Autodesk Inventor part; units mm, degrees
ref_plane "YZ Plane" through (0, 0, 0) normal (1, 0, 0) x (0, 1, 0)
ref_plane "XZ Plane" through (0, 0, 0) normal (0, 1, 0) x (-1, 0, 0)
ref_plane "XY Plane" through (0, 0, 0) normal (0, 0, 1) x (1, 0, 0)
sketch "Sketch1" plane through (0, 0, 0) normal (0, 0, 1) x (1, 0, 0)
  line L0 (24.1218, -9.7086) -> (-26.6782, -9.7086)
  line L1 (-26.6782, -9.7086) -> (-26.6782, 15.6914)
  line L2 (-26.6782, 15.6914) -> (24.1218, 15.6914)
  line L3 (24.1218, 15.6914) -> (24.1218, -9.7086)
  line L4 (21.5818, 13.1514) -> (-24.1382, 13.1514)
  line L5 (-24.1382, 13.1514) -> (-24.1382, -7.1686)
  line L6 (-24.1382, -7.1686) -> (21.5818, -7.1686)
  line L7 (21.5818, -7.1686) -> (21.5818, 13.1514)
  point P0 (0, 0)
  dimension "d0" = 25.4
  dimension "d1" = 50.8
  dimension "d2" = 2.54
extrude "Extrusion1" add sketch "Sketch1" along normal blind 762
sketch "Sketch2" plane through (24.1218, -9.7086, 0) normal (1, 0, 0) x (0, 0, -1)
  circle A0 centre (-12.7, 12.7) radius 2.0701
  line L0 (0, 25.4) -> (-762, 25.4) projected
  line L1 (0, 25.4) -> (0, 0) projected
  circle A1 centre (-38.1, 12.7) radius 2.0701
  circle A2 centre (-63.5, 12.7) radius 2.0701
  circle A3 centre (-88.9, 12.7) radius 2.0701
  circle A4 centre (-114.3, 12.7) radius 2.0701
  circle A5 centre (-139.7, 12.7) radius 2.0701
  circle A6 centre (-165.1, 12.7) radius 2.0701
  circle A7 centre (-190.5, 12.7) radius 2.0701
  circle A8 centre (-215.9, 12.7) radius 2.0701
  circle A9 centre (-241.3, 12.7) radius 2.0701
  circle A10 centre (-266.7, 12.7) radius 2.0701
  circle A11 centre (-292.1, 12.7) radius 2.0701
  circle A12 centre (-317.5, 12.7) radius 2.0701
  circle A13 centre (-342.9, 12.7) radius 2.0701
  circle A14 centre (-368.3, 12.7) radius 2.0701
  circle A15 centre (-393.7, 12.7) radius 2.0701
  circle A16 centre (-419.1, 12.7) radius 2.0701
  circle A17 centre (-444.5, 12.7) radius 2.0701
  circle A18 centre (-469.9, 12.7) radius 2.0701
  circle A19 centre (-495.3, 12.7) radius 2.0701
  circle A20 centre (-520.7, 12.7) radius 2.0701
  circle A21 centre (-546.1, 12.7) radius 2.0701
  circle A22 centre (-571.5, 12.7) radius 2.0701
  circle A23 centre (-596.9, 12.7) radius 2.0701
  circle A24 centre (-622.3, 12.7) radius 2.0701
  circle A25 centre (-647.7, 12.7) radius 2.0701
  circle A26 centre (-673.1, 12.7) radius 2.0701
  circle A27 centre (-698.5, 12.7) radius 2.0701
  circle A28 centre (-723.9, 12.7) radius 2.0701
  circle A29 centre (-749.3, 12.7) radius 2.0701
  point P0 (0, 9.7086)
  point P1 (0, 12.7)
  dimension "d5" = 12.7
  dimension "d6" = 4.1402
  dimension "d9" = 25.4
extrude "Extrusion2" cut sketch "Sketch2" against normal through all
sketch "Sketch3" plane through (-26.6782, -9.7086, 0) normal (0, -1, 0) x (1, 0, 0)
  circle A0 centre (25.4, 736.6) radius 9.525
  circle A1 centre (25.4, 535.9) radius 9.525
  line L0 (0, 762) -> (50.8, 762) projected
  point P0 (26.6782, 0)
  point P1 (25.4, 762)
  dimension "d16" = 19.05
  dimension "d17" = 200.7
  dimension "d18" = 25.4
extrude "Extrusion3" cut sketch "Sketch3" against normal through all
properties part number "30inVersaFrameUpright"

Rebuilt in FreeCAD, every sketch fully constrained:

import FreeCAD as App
import Part
import Sketcher
from FreeCAD import Vector
Q = App.Units.Quantity

doc = App.newDocument("Part")
body = doc.addObject("PartDesign::Body", "Body")

sketch1 = doc.addObject("Sketcher::SketchObject", "Sketch")
body.addObject(sketch1)
sketch1.AttachmentSupport = (doc.XY_Plane, [""])
sketch1.MapMode = "FlatFace"
sketch1.addGeometry(Part.LineSegment(Vector(-26.6782, -9.7086, 0), Vector(24.1218, -9.7086, 0)), False)
sketch1.addGeometry(Part.LineSegment(Vector(24.1218, -9.7086, 0), Vector(24.1218, 15.6914, 0)), False)
sketch1.addGeometry(Part.LineSegment(Vector(24.1218, 15.6914, 0), Vector(-26.6782, 15.6914, 0)), False)
sketch1.addGeometry(Part.LineSegment(Vector(-26.6782, 15.6914, 0), Vector(-26.6782, -9.7086, 0)), False)
sketch1.addGeometry(Part.LineSegment(Vector(-24.1382, 13.1514, 0), Vector(21.5818, 13.1514, 0)), False)
sketch1.addGeometry(Part.LineSegment(Vector(21.5818, 13.1514, 0), Vector(21.5818, -7.1686, 0)), False)
sketch1.addGeometry(Part.LineSegment(Vector(21.5818, -7.1686, 0), Vector(-24.1382, -7.1686, 0)), False)
sketch1.addGeometry(Part.LineSegment(Vector(-24.1382, -7.1686, 0), Vector(-24.1382, 13.1514, 0)), False)
sketch1.addConstraint(Sketcher.Constraint("Coincident", 0, 2, 1, 1))
sketch1.addConstraint(Sketcher.Constraint("Coincident", 1, 2, 2, 1))
sketch1.addConstraint(Sketcher.Constraint("Coincident", 2, 2, 3, 1))
sketch1.addConstraint(Sketcher.Constraint("Coincident", 3, 2, 0, 1))
sketch1.addConstraint(Sketcher.Constraint("Coincident", 4, 2, 5, 1))
sketch1.addConstraint(Sketcher.Constraint("Coincident", 5, 2, 6, 1))
sketch1.addConstraint(Sketcher.Constraint("Coincident", 6, 2, 7, 1))
sketch1.addConstraint(Sketcher.Constraint("Coincident", 7, 2, 4, 1))
sketch1.addConstraint(Sketcher.Constraint("Horizontal", 0))
sketch1.addConstraint(Sketcher.Constraint("Vertical", 1))
sketch1.addConstraint(Sketcher.Constraint("Horizontal", 2))
sketch1.addConstraint(Sketcher.Constraint("Vertical", 3))
sketch1.addConstraint(Sketcher.Constraint("Horizontal", 4))
sketch1.addConstraint(Sketcher.Constraint("Vertical", 5))
sketch1.addConstraint(Sketcher.Constraint("Horizontal", 6))
sketch1.addConstraint(Sketcher.Constraint("Vertical", 7))
sketch1.addConstraint(Sketcher.Constraint("DistanceX", 0, 1, 0, 2, Q("2 in")))
sketch1.addConstraint(Sketcher.Constraint("DistanceY", 1, 1, 1, 2, Q("1 in")))
sketch1.addConstraint(Sketcher.Constraint("DistanceX", 4, 2, 1, 2, Q("0.1 in")))
sketch1.addConstraint(Sketcher.Constraint("DistanceY", 4, 2, 1, 2, Q("0.1 in")))
sketch1.addConstraint(Sketcher.Constraint("DistanceY", 0, 2, 5, 2, Q("0.1 in")))
sketch1.addConstraint(Sketcher.Constraint("DistanceX", 3, 2, 6, 2, Q("0.1 in")))
sketch1.addConstraint(Sketcher.Constraint("DistanceX", -1, 1, 0, 2, Q("24.1218 mm")))
sketch1.addConstraint(Sketcher.Constraint("DistanceY", 0, 2, -1, 1, Q("9.7086 mm")))
pad1 = doc.addObject("PartDesign::Pad", "Pad")
body.addObject(pad1)
pad1.Profile = sketch1
pad1.Length = Q("30 in")

sketch2 = doc.addObject("Sketcher::SketchObject", "Sketch001")
body.addObject(sketch2)
sketch2.AttachmentSupport = (doc.YZ_Plane, [""])
sketch2.MapMode = "FlatFace"
sketch2.AttachmentOffset = App.Placement(Vector(0, 0, 24.1218), App.Rotation())
sketch2.addGeometry(Part.Circle(Vector(2.9914, 12.7, 0), Vector(0, 0, 1), 2.0701), False)
sketch2.addGeometry(Part.Circle(Vector(2.9914, 38.1, 0), Vector(0, 0, 1), 2.0701), False)
sketch2.addGeometry(Part.Circle(Vector(2.9914, 63.5, 0), Vector(0, 0, 1), 2.0701), False)
sketch2.addGeometry(Part.Circle(Vector(2.9914, 88.9, 0), Vector(0, 0, 1), 2.0701), False)
sketch2.addGeometry(Part.Circle(Vector(2.9914, 114.3, 0), Vector(0, 0, 1), 2.0701), False)
sketch2.addGeometry(Part.Circle(Vector(2.9914, 139.7, 0), Vector(0, 0, 1), 2.0701), False)
sketch2.addGeometry(Part.Circle(Vector(2.9914, 165.1, 0), Vector(0, 0, 1), 2.0701), False)
sketch2.addGeometry(Part.Circle(Vector(2.9914, 190.5, 0), Vector(0, 0, 1), 2.0701), False)
sketch2.addGeometry(Part.Circle(Vector(2.9914, 215.9, 0), Vector(0, 0, 1), 2.0701), False)
sketch2.addGeometry(Part.Circle(Vector(2.9914, 241.3, 0), Vector(0, 0, 1), 2.0701), False)
sketch2.addGeometry(Part.Circle(Vector(2.9914, 266.7, 0), Vector(0, 0, 1), 2.0701), False)
sketch2.addGeometry(Part.Circle(Vector(2.9914, 292.1, 0), Vector(0, 0, 1), 2.0701), False)
sketch2.addGeometry(Part.Circle(Vector(2.9914, 317.5, 0), Vector(0, 0, 1), 2.0701), False)
sketch2.addGeometry(Part.Circle(Vector(2.9914, 342.9, 0), Vector(0, 0, 1), 2.0701), False)
sketch2.addGeometry(Part.Circle(Vector(2.9914, 368.3, 0), Vector(0, 0, 1), 2.0701), False)
sketch2.addGeometry(Part.Circle(Vector(2.9914, 393.7, 0), Vector(0, 0, 1), 2.0701), False)
sketch2.addGeometry(Part.Circle(Vector(2.9914, 419.1, 0), Vector(0, 0, 1), 2.0701), False)
sketch2.addGeometry(Part.Circle(Vector(2.9914, 444.5, 0), Vector(0, 0, 1), 2.0701), False)
sketch2.addGeometry(Part.Circle(Vector(2.9914, 469.9, 0), Vector(0, 0, 1), 2.0701), False)
sketch2.addGeometry(Part.Circle(Vector(2.9914, 495.3, 0), Vector(0, 0, 1), 2.0701), False)
sketch2.addGeometry(Part.Circle(Vector(2.9914, 520.7, 0), Vector(0, 0, 1), 2.0701), False)
sketch2.addGeometry(Part.Circle(Vector(2.9914, 546.1, 0), Vector(0, 0, 1), 2.0701), False)
sketch2.addGeometry(Part.Circle(Vector(2.9914, 571.5, 0), Vector(0, 0, 1), 2.0701), False)
sketch2.addGeometry(Part.Circle(Vector(2.9914, 596.9, 0), Vector(0, 0, 1), 2.0701), False)
sketch2.addGeometry(Part.Circle(Vector(2.9914, 622.3, 0), Vector(0, 0, 1), 2.0701), False)
sketch2.addGeometry(Part.Circle(Vector(2.9914, 647.7, 0), Vector(0, 0, 1), 2.0701), False)
sketch2.addGeometry(Part.Circle(Vector(2.9914, 673.1, 0), Vector(0, 0, 1), 2.0701), False)
sketch2.addGeometry(Part.Circle(Vector(2.9914, 698.5, 0), Vector(0, 0, 1), 2.0701), False)
sketch2.addGeometry(Part.Circle(Vector(2.9914, 723.9, 0), Vector(0, 0, 1), 2.0701), False)
sketch2.addGeometry(Part.Circle(Vector(2.9914, 749.3, 0), Vector(0, 0, 1), 2.0701), False)
sketch2.addConstraint(Sketcher.Constraint("Equal", 0, 1))
sketch2.addConstraint(Sketcher.Constraint("Equal", 1, 2))
sketch2.addConstraint(Sketcher.Constraint("Equal", 2, 3))
sketch2.addConstraint(Sketcher.Constraint("Equal", 3, 4))
sketch2.addConstraint(Sketcher.Constraint("Equal", 4, 5))
sketch2.addConstraint(Sketcher.Constraint("Equal", 5, 6))
sketch2.addConstraint(Sketcher.Constraint("Equal", 6, 7))
sketch2.addConstraint(Sketcher.Constraint("Equal", 7, 8))
sketch2.addConstraint(Sketcher.Constraint("Equal", 8, 9))
sketch2.addConstraint(Sketcher.Constraint("Equal", 9, 10))
sketch2.addConstraint(Sketcher.Constraint("Equal", 10, 11))
sketch2.addConstraint(Sketcher.Constraint("Equal", 11, 12))
sketch2.addConstraint(Sketcher.Constraint("Equal", 12, 13))
sketch2.addConstraint(Sketcher.Constraint("Equal", 13, 14))
sketch2.addConstraint(Sketcher.Constraint("Equal", 14, 15))
sketch2.addConstraint(Sketcher.Constraint("Equal", 15, 16))
sketch2.addConstraint(Sketcher.Constraint("Equal", 16, 17))
sketch2.addConstraint(Sketcher.Constraint("Equal", 17, 18))
sketch2.addConstraint(Sketcher.Constraint("Equal", 18, 19))
sketch2.addConstraint(Sketcher.Constraint("Equal", 19, 20))
sketch2.addConstraint(Sketcher.Constraint("Equal", 20, 21))
sketch2.addConstraint(Sketcher.Constraint("Equal", 21, 22))
sketch2.addConstraint(Sketcher.Constraint("Equal", 22, 23))
sketch2.addConstraint(Sketcher.Constraint("Equal", 23, 24))
sketch2.addConstraint(Sketcher.Constraint("Equal", 24, 25))
sketch2.addConstraint(Sketcher.Constraint("Equal", 25, 26))
sketch2.addConstraint(Sketcher.Constraint("Equal", 26, 27))
sketch2.addConstraint(Sketcher.Constraint("Equal", 27, 28))
sketch2.addConstraint(Sketcher.Constraint("Equal", 28, 29))
sketch2.addConstraint(Sketcher.Constraint("Vertical", 0, 3, 1, 3))
sketch2.addConstraint(Sketcher.Constraint("Vertical", 1, 3, 2, 3))
sketch2.addConstraint(Sketcher.Constraint("Vertical", 2, 3, 3, 3))
sketch2.addConstraint(Sketcher.Constraint("Vertical", 3, 3, 4, 3))
sketch2.addConstraint(Sketcher.Constraint("Vertical", 4, 3, 5, 3))
sketch2.addConstraint(Sketcher.Constraint("Vertical", 5, 3, 6, 3))
sketch2.addConstraint(Sketcher.Constraint("Vertical", 6, 3, 7, 3))
sketch2.addConstraint(Sketcher.Constraint("Vertical", 7, 3, 8, 3))
sketch2.addConstraint(Sketcher.Constraint("Vertical", 8, 3, 9, 3))
sketch2.addConstraint(Sketcher.Constraint("Vertical", 9, 3, 10, 3))
sketch2.addConstraint(Sketcher.Constraint("Vertical", 10, 3, 11, 3))
sketch2.addConstraint(Sketcher.Constraint("Vertical", 11, 3, 12, 3))
sketch2.addConstraint(Sketcher.Constraint("Vertical", 12, 3, 13, 3))
sketch2.addConstraint(Sketcher.Constraint("Vertical", 13, 3, 14, 3))
sketch2.addConstraint(Sketcher.Constraint("Vertical", 14, 3, 15, 3))
sketch2.addConstraint(Sketcher.Constraint("Vertical", 15, 3, 16, 3))
sketch2.addConstraint(Sketcher.Constraint("Vertical", 16, 3, 17, 3))
sketch2.addConstraint(Sketcher.Constraint("Vertical", 17, 3, 18, 3))
sketch2.addConstraint(Sketcher.Constraint("Vertical", 18, 3, 19, 3))
sketch2.addConstraint(Sketcher.Constraint("Vertical", 19, 3, 20, 3))
sketch2.addConstraint(Sketcher.Constraint("Vertical", 20, 3, 21, 3))
sketch2.addConstraint(Sketcher.Constraint("Vertical", 21, 3, 22, 3))
sketch2.addConstraint(Sketcher.Constraint("Vertical", 22, 3, 23, 3))
sketch2.addConstraint(Sketcher.Constraint("Vertical", 23, 3, 24, 3))
sketch2.addConstraint(Sketcher.Constraint("Vertical", 24, 3, 25, 3))
sketch2.addConstraint(Sketcher.Constraint("Vertical", 25, 3, 26, 3))
sketch2.addConstraint(Sketcher.Constraint("Vertical", 26, 3, 27, 3))
sketch2.addConstraint(Sketcher.Constraint("Vertical", 27, 3, 28, 3))
sketch2.addConstraint(Sketcher.Constraint("Vertical", 28, 3, 29, 3))
sketch2.addConstraint(Sketcher.Constraint("Diameter", 0, Q("0.163 in")))
sketch2.addConstraint(Sketcher.Constraint("DistanceY", 0, 3, 1, 3, Q("1 in")))
sketch2.addConstraint(Sketcher.Constraint("DistanceY", 1, 3, 2, 3, Q("1 in")))
sketch2.addConstraint(Sketcher.Constraint("DistanceY", 2, 3, 3, 3, Q("1 in")))
sketch2.addConstraint(Sketcher.Constraint("DistanceY", 3, 3, 4, 3, Q("1 in")))
sketch2.addConstraint(Sketcher.Constraint("DistanceY", 4, 3, 5, 3, Q("1 in")))
sketch2.addConstraint(Sketcher.Constraint("DistanceY", 5, 3, 6, 3, Q("1 in")))
sketch2.addConstraint(Sketcher.Constraint("DistanceY", 6, 3, 7, 3, Q("1 in")))
sketch2.addConstraint(Sketcher.Constraint("DistanceY", 7, 3, 8, 3, Q("1 in")))
sketch2.addConstraint(Sketcher.Constraint("DistanceY", 8, 3, 9, 3, Q("1 in")))
sketch2.addConstraint(Sketcher.Constraint("DistanceY", 9, 3, 10, 3, Q("1 in")))
sketch2.addConstraint(Sketcher.Constraint("DistanceY", 10, 3, 11, 3, Q("1 in")))
sketch2.addConstraint(Sketcher.Constraint("DistanceY", 11, 3, 12, 3, Q("1 in")))
sketch2.addConstraint(Sketcher.Constraint("DistanceY", 12, 3, 13, 3, Q("1 in")))
sketch2.addConstraint(Sketcher.Constraint("DistanceY", 13, 3, 14, 3, Q("1 in")))
sketch2.addConstraint(Sketcher.Constraint("DistanceY", 14, 3, 15, 3, Q("1 in")))
sketch2.addConstraint(Sketcher.Constraint("DistanceY", 15, 3, 16, 3, Q("1 in")))
sketch2.addConstraint(Sketcher.Constraint("DistanceY", 16, 3, 17, 3, Q("1 in")))
sketch2.addConstraint(Sketcher.Constraint("DistanceY", 17, 3, 18, 3, Q("1 in")))
sketch2.addConstraint(Sketcher.Constraint("DistanceY", 18, 3, 19, 3, Q("1 in")))
sketch2.addConstraint(Sketcher.Constraint("DistanceY", 19, 3, 20, 3, Q("1 in")))
sketch2.addConstraint(Sketcher.Constraint("DistanceY", 20, 3, 21, 3, Q("1 in")))
sketch2.addConstraint(Sketcher.Constraint("DistanceY", 21, 3, 22, 3, Q("1 in")))
sketch2.addConstraint(Sketcher.Constraint("DistanceY", 22, 3, 23, 3, Q("1 in")))
sketch2.addConstraint(Sketcher.Constraint("DistanceY", 23, 3, 24, 3, Q("1 in")))
sketch2.addConstraint(Sketcher.Constraint("DistanceY", 24, 3, 25, 3, Q("1 in")))
sketch2.addConstraint(Sketcher.Constraint("DistanceY", 25, 3, 26, 3, Q("1 in")))
sketch2.addConstraint(Sketcher.Constraint("DistanceY", 26, 3, 27, 3, Q("1 in")))
sketch2.addConstraint(Sketcher.Constraint("DistanceY", 27, 3, 28, 3, Q("1 in")))
sketch2.addConstraint(Sketcher.Constraint("DistanceY", 28, 3, 29, 3, Q("1 in")))
sketch2.addConstraint(Sketcher.Constraint("DistanceY", -1, 1, 0, 3, Q("0.5 in")))
sketch2.addConstraint(Sketcher.Constraint("DistanceX", -1, 1, 0, 3, Q("2.9914 mm")))
pocket1 = doc.addObject("PartDesign::Pocket", "Pocket")
body.addObject(pocket1)
pocket1.Profile = sketch2
pocket1.Type = "ThroughAll"

sketch3 = doc.addObject("Sketcher::SketchObject", "Sketch002")
body.addObject(sketch3)
sketch3.AttachmentSupport = (doc.XZ_Plane, [""])
sketch3.MapMode = "FlatFace"
sketch3.AttachmentOffset = App.Placement(Vector(0, 0, 9.7086), App.Rotation())
sketch3.addGeometry(Part.Circle(Vector(-1.2782, 736.6, 0), Vector(0, 0, 1), 9.525), False)
sketch3.addGeometry(Part.Circle(Vector(-1.2782, 535.9, 0), Vector(0, 0, 1), 9.525), False)
sketch3.addConstraint(Sketcher.Constraint("Equal", 0, 1))
sketch3.addConstraint(Sketcher.Constraint("Vertical", 0, 3, 1, 3))
sketch3.addConstraint(Sketcher.Constraint("Diameter", 0, Q("0.75 in")))
sketch3.addConstraint(Sketcher.Constraint("DistanceY", -1, 1, 0, 3, Q("29 in")))
sketch3.addConstraint(Sketcher.Constraint("DistanceY", 1, 3, 0, 3, Q("200.7 mm")))
sketch3.addConstraint(Sketcher.Constraint("DistanceX", 0, 3, -1, 1, Q("1.2782 mm")))
pocket2 = doc.addObject("PartDesign::Pocket", "Pocket001")
body.addObject(pocket2)
pocket2.Profile = sketch3
pocket2.Type = "ThroughAll"

doc.recompute()
